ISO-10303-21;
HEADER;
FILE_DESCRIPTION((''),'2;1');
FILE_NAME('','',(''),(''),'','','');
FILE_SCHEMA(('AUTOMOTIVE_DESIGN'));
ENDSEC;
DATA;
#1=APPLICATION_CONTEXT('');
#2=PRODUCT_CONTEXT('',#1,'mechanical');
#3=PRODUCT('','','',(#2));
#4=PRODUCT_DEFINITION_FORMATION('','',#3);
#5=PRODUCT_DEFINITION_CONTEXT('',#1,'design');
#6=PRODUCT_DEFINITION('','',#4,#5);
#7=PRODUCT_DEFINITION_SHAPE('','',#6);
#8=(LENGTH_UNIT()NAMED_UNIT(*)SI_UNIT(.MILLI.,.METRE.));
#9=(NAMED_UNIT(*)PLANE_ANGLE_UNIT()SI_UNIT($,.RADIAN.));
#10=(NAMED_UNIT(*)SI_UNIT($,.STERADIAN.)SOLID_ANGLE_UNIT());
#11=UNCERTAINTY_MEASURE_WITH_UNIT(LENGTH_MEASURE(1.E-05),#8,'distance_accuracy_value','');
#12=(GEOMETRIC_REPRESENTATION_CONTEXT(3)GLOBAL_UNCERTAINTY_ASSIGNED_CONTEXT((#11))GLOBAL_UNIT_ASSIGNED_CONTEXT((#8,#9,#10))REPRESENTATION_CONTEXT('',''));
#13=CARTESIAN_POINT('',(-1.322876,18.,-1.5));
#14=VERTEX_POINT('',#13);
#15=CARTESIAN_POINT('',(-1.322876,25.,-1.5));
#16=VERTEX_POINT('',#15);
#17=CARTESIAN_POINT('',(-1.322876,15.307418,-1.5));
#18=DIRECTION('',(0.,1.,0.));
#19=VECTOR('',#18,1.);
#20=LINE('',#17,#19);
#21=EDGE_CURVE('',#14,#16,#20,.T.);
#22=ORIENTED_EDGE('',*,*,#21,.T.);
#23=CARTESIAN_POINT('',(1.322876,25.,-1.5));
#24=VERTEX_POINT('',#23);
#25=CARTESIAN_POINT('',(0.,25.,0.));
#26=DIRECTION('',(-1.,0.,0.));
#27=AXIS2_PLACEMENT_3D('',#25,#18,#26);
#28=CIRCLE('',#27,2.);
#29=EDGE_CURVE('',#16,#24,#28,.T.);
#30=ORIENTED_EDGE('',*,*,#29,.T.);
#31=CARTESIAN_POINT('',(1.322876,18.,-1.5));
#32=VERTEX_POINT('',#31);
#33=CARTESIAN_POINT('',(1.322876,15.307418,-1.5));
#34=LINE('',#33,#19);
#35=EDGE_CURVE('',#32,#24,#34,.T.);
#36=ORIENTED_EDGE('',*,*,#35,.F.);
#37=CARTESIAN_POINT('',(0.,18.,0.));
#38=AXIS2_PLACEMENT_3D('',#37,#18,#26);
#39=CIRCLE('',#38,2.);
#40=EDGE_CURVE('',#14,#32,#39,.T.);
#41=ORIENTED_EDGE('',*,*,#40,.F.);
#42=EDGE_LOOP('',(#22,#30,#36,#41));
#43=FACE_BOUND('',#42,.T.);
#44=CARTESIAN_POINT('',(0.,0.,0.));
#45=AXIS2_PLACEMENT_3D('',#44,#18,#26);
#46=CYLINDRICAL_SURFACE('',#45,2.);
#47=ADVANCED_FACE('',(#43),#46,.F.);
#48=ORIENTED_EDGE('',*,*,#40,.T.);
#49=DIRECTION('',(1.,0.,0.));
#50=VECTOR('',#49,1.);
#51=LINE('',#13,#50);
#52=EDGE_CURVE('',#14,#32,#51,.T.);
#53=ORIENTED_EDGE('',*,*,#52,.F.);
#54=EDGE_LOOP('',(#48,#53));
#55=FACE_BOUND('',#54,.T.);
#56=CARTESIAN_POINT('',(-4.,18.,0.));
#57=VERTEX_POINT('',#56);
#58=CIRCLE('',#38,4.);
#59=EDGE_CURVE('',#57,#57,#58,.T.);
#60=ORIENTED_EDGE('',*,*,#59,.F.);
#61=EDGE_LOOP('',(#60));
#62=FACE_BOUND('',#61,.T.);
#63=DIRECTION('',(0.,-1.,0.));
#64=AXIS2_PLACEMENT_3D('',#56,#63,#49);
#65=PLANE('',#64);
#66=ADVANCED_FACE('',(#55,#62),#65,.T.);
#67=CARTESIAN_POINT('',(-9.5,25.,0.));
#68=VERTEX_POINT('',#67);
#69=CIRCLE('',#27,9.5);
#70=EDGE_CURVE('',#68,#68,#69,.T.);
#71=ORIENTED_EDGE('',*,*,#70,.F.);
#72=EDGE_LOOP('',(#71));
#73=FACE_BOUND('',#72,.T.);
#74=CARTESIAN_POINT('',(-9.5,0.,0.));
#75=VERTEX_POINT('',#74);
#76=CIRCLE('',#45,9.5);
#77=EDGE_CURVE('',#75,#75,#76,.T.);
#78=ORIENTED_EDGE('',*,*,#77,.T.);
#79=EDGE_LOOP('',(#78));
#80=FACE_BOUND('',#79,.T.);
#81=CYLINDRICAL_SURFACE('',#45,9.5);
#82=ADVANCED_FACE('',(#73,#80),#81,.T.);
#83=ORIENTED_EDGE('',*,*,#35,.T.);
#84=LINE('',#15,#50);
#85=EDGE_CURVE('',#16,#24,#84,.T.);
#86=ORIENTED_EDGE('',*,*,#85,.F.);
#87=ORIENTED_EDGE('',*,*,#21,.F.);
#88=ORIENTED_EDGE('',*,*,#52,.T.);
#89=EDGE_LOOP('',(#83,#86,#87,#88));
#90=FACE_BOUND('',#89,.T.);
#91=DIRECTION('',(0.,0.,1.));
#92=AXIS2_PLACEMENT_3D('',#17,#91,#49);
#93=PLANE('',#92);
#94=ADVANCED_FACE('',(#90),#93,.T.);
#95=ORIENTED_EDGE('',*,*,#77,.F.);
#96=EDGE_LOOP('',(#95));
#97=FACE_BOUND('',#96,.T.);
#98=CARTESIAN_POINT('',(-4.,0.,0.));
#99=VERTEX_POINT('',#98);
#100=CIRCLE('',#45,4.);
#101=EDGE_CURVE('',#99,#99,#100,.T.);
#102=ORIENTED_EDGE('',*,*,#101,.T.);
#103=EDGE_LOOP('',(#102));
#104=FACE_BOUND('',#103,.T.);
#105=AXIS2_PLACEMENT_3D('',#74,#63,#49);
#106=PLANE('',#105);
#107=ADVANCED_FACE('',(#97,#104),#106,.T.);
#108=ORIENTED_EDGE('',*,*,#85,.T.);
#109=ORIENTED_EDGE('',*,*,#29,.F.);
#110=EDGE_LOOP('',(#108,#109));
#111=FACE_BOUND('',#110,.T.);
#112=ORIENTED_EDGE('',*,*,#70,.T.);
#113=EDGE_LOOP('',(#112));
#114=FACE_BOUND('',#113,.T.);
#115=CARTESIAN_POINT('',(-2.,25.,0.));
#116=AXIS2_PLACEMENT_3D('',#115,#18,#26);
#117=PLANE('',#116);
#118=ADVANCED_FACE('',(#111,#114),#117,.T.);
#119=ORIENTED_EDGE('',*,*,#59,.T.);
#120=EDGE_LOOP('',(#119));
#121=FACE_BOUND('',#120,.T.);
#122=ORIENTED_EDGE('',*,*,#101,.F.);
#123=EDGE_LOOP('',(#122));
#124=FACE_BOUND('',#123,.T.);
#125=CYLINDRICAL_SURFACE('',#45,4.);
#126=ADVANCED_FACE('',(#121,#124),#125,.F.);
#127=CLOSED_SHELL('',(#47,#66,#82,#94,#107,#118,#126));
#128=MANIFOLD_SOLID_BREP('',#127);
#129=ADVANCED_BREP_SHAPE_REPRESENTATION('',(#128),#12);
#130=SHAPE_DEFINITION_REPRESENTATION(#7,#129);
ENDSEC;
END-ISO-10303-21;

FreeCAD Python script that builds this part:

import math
import FreeCAD as App
import Part
import Sketcher

V = App.Vector
Q = App.Units.Quantity

doc = App.newDocument("Part")
body = doc.addObject("PartDesign::Body", "Body")

sketch1 = body.newObject("Sketcher::SketchObject", "Sketch")
sketch1.AttachmentSupport = (doc.getObject("XY_Plane"), [""])
sketch1.MapMode = "FlatFace"
sketch1.addGeometry(Part.LineSegment(V(-4, 0, 0), V(-4, 18, 0)), False)
sketch1.addGeometry(Part.LineSegment(V(-4, 18, 0), V(-2, 18, 0)), False)
sketch1.addGeometry(Part.LineSegment(V(-2, 18, 0), V(-2, 25, 0)), False)
sketch1.addGeometry(Part.LineSegment(V(-2, 25, 0), V(-9.5, 25, 0)), False)
sketch1.addGeometry(Part.LineSegment(V(-9.5, 25, 0), V(-9.5, 0, 0)), False)
sketch1.addGeometry(Part.LineSegment(V(-9.5, 0, 0), V(-4, 0, 0)), False)
sketch1.addConstraint(Sketcher.Constraint("Coincident", 0, 2, 1, 1))
sketch1.addConstraint(Sketcher.Constraint("Coincident", 1, 2, 2, 1))
sketch1.addConstraint(Sketcher.Constraint("Coincident", 2, 2, 3, 1))
sketch1.addConstraint(Sketcher.Constraint("Coincident", 3, 2, 4, 1))
sketch1.addConstraint(Sketcher.Constraint("Coincident", 4, 2, 5, 1))
sketch1.addConstraint(Sketcher.Constraint("Coincident", 5, 2, 0, 1))
sketch1.addConstraint(Sketcher.Constraint("Vertical", 0))
sketch1.addConstraint(Sketcher.Constraint("Horizontal", 1))
sketch1.addConstraint(Sketcher.Constraint("Vertical", 2))
sketch1.addConstraint(Sketcher.Constraint("Horizontal", 3))
sketch1.addConstraint(Sketcher.Constraint("Vertical", 4))
sketch1.addConstraint(Sketcher.Constraint("Horizontal", 5))
sketch1.addConstraint(Sketcher.Constraint("PointOnObject", 4, 2, -1))
sketch1.addConstraint(Sketcher.Constraint("DistanceX", 1, 1, 1, 2, Q("2 mm")))
sketch1.addConstraint(Sketcher.Constraint("DistanceY", 0, 1, 0, 2, Q("18 mm")))
sketch1.addConstraint(Sketcher.Constraint("DistanceY", 2, 1, 2, 2, Q("7 mm")))
sketch1.addConstraint(Sketcher.Constraint("DistanceX", 3, 2, 3, 1, Q("7.5 mm")))
sketch1.addConstraint(Sketcher.Constraint("DistanceX", 0, 2, -1, 1, Q("4 mm")))
revolution = body.newObject("PartDesign::Revolution", "Revolution")
revolution.Profile = sketch1
revolution.ReferenceAxis = (sketch1, ["V_Axis"])
revolution.Angle = 360

sketch2 = body.newObject("Sketcher::SketchObject", "Sketch001")
sketch2.AttachmentSupport = (doc.getObject("XZ_Plane"), [""])
sketch2.MapMode = "FlatFace"
sketch2.AttachmentOffset = App.Placement(V(0, 0, -25), App.Rotation())
sketch2.addGeometry(Part.LineSegment(V(-1.3, -1.5, 0), V(1.3, -1.5, 0)), False)
sketch2.addGeometry(Part.ArcOfCircle(Part.Circle(V(0, 0, 0), V(0, 0, 1), 2), math.radians(-131), math.radians(-49)), False)
sketch2.addConstraint(Sketcher.Constraint("Coincident", 0, 1, 1, 1))
sketch2.addConstraint(Sketcher.Constraint("Coincident", 1, 2, 0, 2))
sketch2.addConstraint(Sketcher.Constraint("Horizontal", 0))
sketch2.addConstraint(Sketcher.Constraint("Coincident", 1, 3, -1, 1))
sketch2.addConstraint(Sketcher.Constraint("Radius", 1, Q("2 mm")))
sketch2.addConstraint(Sketcher.Constraint("DistanceY", 0, 1, -1, 1, Q("1.5 mm")))
pad1 = body.newObject("PartDesign::Pad", "Pad")
pad1.Profile = sketch2
pad1.Length = 7

doc.recompute()
